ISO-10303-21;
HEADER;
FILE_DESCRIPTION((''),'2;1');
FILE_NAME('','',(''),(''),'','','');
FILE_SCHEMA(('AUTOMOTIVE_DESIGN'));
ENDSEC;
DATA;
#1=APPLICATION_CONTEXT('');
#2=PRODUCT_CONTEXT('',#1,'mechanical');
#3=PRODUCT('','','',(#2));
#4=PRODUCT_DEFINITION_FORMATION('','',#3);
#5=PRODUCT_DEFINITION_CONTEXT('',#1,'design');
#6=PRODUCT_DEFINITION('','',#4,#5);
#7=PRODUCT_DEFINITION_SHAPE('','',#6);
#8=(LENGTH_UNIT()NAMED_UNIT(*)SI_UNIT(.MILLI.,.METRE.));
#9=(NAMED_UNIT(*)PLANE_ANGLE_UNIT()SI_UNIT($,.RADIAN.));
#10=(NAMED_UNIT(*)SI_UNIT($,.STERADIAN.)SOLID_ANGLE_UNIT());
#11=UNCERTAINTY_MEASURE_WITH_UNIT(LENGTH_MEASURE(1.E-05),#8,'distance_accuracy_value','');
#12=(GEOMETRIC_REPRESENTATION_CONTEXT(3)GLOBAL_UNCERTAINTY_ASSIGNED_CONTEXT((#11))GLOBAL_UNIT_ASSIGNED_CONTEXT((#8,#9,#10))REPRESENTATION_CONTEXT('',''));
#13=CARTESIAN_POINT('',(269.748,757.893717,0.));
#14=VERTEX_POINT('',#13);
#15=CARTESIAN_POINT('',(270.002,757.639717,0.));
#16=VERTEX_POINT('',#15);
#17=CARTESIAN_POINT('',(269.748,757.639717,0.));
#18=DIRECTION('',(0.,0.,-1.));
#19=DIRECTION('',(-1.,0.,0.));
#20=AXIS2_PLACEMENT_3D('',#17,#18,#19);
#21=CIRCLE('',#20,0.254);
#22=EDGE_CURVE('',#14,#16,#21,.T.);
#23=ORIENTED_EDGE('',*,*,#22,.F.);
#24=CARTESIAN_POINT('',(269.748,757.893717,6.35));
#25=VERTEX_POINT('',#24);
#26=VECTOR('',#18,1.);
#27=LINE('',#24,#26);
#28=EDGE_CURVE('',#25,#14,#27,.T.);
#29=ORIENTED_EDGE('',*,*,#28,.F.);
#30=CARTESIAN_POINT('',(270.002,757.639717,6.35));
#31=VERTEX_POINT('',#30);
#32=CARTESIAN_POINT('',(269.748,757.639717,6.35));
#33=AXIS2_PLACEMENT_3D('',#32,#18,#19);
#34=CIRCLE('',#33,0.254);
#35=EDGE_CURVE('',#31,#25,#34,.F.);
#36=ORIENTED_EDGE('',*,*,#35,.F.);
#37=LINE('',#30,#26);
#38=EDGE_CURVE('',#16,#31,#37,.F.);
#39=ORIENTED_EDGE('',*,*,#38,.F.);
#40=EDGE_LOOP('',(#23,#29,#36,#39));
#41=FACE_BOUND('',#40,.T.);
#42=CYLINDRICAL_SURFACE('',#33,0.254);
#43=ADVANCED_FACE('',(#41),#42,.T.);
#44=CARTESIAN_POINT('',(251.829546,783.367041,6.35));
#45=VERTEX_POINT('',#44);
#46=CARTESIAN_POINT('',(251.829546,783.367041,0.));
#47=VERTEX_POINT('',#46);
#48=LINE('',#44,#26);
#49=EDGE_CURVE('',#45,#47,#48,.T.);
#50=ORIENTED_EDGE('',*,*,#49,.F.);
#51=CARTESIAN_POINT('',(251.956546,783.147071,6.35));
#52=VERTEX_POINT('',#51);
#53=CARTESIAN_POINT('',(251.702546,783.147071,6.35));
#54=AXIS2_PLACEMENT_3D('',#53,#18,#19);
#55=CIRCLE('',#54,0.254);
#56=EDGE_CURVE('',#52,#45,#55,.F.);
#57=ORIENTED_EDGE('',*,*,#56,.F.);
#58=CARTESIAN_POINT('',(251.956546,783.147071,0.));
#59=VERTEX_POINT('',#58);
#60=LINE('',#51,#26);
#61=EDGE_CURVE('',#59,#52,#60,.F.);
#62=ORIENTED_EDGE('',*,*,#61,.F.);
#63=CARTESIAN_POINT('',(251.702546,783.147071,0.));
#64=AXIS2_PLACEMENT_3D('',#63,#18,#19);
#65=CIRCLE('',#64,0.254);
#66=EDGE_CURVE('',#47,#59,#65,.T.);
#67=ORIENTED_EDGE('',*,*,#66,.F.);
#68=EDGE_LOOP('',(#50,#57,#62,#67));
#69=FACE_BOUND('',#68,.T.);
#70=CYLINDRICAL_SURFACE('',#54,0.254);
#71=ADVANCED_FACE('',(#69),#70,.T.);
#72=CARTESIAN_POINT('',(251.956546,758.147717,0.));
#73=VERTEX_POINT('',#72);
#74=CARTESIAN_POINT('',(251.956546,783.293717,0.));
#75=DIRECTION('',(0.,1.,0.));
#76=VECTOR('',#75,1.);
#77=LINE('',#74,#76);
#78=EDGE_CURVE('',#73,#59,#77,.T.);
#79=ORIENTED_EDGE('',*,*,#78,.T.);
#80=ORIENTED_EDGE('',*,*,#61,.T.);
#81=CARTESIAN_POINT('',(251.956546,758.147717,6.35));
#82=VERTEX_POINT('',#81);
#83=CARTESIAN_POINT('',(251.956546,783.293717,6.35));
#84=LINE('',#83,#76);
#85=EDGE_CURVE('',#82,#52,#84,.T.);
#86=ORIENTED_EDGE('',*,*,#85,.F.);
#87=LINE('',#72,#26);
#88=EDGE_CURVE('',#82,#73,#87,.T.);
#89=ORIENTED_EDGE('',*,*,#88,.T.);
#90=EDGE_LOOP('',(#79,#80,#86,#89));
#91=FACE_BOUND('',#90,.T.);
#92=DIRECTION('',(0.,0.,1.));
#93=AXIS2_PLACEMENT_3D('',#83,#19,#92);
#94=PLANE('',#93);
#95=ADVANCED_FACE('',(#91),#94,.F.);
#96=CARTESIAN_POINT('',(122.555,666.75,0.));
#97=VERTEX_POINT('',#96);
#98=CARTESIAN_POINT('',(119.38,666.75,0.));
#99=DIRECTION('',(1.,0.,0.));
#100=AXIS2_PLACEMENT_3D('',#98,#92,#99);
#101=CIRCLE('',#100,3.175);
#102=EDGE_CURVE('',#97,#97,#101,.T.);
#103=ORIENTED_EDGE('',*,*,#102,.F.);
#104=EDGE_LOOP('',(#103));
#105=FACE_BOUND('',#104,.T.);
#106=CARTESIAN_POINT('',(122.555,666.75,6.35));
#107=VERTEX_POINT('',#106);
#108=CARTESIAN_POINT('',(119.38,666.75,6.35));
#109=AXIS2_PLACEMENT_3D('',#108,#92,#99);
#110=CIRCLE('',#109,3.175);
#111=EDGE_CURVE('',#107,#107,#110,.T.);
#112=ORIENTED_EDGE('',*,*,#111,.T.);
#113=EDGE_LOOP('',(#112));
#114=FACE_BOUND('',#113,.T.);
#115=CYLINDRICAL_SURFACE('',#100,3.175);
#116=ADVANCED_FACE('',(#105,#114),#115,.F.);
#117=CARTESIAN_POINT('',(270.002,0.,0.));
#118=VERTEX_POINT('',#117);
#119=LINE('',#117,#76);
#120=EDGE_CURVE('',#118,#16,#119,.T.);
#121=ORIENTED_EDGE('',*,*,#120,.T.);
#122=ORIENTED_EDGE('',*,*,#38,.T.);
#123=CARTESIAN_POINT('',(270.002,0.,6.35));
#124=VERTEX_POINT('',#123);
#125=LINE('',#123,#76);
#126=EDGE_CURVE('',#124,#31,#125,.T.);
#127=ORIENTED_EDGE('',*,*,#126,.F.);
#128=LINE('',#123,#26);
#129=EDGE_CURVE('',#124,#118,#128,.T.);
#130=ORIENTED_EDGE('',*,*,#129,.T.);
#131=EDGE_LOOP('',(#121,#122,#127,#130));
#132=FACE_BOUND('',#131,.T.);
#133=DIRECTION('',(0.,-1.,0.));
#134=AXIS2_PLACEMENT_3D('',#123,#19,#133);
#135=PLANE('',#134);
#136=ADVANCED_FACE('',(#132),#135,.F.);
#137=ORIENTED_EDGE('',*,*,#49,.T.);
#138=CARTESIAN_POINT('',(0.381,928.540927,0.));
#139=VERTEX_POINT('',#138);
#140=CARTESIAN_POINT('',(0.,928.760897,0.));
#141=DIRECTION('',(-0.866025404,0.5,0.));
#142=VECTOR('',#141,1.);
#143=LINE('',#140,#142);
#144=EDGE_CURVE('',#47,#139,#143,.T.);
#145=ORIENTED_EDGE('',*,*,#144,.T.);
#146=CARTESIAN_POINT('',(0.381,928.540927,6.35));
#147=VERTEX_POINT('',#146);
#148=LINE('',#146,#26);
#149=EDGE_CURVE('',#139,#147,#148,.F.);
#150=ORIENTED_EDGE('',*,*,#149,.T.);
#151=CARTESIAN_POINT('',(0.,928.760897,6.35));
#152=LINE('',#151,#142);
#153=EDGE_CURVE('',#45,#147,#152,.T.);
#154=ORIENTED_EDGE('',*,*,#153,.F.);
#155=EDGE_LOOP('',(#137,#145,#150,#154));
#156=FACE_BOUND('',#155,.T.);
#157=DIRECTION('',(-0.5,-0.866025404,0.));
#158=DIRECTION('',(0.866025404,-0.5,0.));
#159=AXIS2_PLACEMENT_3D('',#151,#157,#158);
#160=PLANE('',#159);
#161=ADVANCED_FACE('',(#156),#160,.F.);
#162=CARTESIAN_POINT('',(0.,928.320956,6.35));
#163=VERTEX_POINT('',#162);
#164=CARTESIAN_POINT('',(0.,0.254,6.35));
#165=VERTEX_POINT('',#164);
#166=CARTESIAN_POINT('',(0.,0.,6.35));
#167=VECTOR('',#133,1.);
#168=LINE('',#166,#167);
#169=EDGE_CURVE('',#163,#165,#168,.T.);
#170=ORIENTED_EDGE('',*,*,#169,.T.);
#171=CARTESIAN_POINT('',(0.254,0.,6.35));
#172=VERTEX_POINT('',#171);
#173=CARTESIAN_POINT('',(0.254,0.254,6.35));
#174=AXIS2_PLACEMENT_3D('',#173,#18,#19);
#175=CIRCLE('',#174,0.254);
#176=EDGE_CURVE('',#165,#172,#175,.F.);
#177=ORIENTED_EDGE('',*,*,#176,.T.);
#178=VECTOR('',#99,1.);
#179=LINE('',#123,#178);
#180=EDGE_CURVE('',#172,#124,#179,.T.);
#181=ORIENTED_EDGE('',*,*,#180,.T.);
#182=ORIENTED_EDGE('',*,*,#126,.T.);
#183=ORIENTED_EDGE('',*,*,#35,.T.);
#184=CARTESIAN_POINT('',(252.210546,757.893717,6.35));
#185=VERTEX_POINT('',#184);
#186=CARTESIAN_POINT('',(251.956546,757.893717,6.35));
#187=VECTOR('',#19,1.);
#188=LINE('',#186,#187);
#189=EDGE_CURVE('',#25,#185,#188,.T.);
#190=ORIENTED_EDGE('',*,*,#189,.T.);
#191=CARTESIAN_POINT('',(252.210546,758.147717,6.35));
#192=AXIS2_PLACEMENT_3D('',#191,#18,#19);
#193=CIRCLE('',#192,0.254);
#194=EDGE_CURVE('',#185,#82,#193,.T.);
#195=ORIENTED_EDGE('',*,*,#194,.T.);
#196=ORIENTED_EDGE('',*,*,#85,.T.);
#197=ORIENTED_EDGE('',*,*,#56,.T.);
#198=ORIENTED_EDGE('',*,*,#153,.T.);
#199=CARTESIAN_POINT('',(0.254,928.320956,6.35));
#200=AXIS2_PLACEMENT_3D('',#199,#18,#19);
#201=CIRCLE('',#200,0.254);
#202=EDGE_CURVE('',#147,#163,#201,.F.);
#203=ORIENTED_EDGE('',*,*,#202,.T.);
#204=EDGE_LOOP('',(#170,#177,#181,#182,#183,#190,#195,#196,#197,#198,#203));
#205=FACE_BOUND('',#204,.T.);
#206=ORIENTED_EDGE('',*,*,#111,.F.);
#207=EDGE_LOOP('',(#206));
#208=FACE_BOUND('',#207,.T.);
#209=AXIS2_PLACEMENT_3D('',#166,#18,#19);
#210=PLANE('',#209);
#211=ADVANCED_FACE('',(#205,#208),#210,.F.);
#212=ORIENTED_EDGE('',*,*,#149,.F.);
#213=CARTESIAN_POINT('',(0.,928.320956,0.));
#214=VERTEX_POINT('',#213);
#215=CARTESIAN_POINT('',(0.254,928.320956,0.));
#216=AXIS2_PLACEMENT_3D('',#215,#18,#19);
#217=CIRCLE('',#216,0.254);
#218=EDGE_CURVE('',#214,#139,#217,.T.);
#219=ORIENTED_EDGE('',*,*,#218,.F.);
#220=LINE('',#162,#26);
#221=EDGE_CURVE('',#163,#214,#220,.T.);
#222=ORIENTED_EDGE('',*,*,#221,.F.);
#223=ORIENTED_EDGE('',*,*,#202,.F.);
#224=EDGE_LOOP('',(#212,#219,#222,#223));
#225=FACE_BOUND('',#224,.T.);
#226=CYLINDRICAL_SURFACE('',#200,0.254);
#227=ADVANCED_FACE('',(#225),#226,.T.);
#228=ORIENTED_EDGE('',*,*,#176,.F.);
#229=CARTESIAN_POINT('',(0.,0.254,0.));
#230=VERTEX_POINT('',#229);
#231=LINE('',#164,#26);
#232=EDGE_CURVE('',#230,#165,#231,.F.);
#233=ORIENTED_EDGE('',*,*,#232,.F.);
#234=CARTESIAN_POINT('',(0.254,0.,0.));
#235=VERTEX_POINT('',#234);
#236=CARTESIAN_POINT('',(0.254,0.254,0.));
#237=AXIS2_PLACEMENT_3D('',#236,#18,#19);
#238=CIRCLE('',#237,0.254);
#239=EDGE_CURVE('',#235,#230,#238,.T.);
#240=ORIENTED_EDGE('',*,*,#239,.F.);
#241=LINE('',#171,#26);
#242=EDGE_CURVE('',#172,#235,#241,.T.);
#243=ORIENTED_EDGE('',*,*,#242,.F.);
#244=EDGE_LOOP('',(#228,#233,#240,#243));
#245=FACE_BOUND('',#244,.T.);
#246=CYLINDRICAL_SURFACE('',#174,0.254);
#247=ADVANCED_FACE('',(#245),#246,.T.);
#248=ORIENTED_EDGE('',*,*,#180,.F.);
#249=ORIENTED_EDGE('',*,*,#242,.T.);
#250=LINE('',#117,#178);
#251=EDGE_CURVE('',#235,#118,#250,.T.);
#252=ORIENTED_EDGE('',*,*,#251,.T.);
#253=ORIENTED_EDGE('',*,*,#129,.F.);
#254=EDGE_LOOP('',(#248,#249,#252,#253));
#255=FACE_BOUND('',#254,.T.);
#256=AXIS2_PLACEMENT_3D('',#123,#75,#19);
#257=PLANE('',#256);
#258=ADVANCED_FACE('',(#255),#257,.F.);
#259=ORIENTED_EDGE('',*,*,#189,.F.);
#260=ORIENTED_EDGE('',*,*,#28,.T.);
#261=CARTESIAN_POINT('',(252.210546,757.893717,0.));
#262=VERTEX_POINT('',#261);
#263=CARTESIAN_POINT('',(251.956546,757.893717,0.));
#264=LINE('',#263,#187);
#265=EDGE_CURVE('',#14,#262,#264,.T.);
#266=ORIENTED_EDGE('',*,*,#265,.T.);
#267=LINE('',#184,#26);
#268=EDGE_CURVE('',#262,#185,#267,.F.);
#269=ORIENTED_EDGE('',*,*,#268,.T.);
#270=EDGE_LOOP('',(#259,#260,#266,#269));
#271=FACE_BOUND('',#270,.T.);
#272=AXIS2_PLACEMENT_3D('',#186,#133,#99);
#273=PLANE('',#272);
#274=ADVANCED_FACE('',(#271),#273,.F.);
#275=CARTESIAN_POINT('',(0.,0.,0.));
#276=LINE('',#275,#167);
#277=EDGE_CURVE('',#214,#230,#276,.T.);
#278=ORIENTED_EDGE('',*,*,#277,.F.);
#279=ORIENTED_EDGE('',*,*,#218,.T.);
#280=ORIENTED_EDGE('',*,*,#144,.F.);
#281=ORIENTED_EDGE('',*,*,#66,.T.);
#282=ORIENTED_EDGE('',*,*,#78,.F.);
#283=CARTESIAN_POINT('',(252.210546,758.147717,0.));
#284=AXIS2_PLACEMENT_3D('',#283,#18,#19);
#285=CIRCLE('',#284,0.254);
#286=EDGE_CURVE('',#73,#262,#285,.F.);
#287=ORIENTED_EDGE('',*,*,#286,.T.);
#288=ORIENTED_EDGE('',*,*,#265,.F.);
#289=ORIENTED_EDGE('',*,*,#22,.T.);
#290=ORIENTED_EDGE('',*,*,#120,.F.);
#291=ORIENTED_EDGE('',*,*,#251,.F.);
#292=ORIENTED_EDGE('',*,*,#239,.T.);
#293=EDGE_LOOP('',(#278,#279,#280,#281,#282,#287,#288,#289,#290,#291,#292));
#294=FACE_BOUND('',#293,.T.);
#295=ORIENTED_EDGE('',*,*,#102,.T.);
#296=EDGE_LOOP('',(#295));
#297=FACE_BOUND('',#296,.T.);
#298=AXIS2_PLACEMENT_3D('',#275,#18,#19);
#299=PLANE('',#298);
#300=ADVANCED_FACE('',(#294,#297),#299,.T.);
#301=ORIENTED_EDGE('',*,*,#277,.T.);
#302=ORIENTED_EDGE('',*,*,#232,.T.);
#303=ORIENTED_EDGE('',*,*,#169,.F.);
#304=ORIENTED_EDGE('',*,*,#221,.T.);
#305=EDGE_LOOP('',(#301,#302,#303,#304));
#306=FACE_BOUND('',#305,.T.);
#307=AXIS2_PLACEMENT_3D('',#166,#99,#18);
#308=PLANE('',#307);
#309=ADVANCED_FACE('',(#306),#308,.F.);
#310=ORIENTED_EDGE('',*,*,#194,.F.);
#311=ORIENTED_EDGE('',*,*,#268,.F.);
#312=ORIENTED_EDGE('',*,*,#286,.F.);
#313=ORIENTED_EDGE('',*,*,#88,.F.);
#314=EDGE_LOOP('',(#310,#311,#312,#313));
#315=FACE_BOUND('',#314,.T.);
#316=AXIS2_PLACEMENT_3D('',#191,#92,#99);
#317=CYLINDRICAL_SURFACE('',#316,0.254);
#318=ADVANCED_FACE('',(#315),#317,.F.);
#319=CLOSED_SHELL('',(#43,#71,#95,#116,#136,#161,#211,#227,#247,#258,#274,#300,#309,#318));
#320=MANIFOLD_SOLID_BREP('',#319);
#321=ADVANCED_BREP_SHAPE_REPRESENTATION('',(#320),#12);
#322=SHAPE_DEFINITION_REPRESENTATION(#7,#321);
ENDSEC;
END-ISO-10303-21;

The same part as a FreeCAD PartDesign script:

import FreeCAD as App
import Part
import Sketcher
from FreeCAD import Vector
Q = App.Units.Quantity


def edges_at(feature, points):
    """Names of the edges that pass closest to the given points."""
    edges = feature.Shape.Edges
    near = lambda p: min(range(len(edges)), key=lambda i: edges[i].distToShape(Part.Vertex(*p))[0])
    return sorted({f"Edge{near(p) + 1}" for p in points})


def add_polygon(sketch, points):
    """Adds a closed chain of lines whose ends are joined by coincident constraints."""
    first, n = sketch.GeometryCount, len(points)
    for a, b in zip(points, points[1:] + points[:1]):
        sketch.addGeometry(Part.LineSegment(App.Vector(*a, 0), App.Vector(*b, 0)), False)
    for i in range(n):
        sketch.addConstraint(Sketcher.Constraint("Coincident", first + i, 2, first + (i + 1) % n, 1))

doc = App.newDocument("Part")
body = doc.addObject("PartDesign::Body", "Body")

# Sketch on XY plane
sketch1 = body.newObject("Sketcher::SketchObject", "Sketch")
sketch1.AttachmentSupport = (doc.getObject("XY_Plane"), [""])
sketch1.MapMode = "FlatFace"
add_polygon(sketch1, [(270.002, 0), (270.002, 757.893717), (251.956546, 757.893717), (251.956546, 783.293717), (0, 928.760897), (0, 0)])  # lines 0-5
sketch1.addConstraint([
    Sketcher.Constraint("Vertical", 0),
    Sketcher.Constraint("Horizontal", 1),
    Sketcher.Constraint("Vertical", 2),
    Sketcher.Constraint("Vertical", 4),
    Sketcher.Constraint("Horizontal", 5),
    Sketcher.Constraint("Coincident", 4, 2, -1, 1),
    Sketcher.Constraint("DistanceY", 2, 1, 2, 2, Q("1 in")),
    Sketcher.Constraint("Angle", 3, Q("150 deg")),
    Sketcher.Constraint("DistanceX", 5, 1, 5, 2, Q("10.63 in")),
    Sketcher.Constraint("Distance", 3, 290.934359),
    Sketcher.Constraint("DistanceY", 0, 1, 0, 2, 757.893717),
])
pad1 = body.newObject("PartDesign::Pad", "Pad")
pad1.Profile = sketch1
pad1.Length = Q("0.25 in")
doc.recompute()

fillet = body.newObject("PartDesign::Fillet", "Fillet")
fillet.Base = (pad1, edges_at(pad1, [
    (0, 0, 3.175),
    (0, 928.761, 3.175),
    (251.957, 783.294, 3.175),
    (251.957, 757.894, 3.175),
    (270.002, 757.894, 3.175),
]))
fillet.Radius = Q("0.01 in")

# Sketch on XY plane
sketch2 = body.newObject("Sketcher::SketchObject", "Sketch001")
sketch2.AttachmentSupport = (doc.getObject("XY_Plane"), [""])
sketch2.MapMode = "FlatFace"
sketch2.AttachmentOffset = App.Placement(Vector(0, 0, 0.25 * 25.4), App.Rotation())
sketch2.addGeometry(Part.Circle(Vector(119.38, 666.75, 0), Vector(0, 0, 1), 3.175), False)
sketch2.addConstraint([
    Sketcher.Constraint("Diameter", 0, Q("0.25 in")),
    Sketcher.Constraint("DistanceX", -1, 1, 0, 3, Q("4.7 in")),
    Sketcher.Constraint("DistanceY", -1, 1, 0, 3, Q("26.25 in")),
])
pocket1 = body.newObject("PartDesign::Pocket", "Pocket")
pocket1.Profile = sketch2
pocket1.Type = "ThroughAll"

doc.recompute()
